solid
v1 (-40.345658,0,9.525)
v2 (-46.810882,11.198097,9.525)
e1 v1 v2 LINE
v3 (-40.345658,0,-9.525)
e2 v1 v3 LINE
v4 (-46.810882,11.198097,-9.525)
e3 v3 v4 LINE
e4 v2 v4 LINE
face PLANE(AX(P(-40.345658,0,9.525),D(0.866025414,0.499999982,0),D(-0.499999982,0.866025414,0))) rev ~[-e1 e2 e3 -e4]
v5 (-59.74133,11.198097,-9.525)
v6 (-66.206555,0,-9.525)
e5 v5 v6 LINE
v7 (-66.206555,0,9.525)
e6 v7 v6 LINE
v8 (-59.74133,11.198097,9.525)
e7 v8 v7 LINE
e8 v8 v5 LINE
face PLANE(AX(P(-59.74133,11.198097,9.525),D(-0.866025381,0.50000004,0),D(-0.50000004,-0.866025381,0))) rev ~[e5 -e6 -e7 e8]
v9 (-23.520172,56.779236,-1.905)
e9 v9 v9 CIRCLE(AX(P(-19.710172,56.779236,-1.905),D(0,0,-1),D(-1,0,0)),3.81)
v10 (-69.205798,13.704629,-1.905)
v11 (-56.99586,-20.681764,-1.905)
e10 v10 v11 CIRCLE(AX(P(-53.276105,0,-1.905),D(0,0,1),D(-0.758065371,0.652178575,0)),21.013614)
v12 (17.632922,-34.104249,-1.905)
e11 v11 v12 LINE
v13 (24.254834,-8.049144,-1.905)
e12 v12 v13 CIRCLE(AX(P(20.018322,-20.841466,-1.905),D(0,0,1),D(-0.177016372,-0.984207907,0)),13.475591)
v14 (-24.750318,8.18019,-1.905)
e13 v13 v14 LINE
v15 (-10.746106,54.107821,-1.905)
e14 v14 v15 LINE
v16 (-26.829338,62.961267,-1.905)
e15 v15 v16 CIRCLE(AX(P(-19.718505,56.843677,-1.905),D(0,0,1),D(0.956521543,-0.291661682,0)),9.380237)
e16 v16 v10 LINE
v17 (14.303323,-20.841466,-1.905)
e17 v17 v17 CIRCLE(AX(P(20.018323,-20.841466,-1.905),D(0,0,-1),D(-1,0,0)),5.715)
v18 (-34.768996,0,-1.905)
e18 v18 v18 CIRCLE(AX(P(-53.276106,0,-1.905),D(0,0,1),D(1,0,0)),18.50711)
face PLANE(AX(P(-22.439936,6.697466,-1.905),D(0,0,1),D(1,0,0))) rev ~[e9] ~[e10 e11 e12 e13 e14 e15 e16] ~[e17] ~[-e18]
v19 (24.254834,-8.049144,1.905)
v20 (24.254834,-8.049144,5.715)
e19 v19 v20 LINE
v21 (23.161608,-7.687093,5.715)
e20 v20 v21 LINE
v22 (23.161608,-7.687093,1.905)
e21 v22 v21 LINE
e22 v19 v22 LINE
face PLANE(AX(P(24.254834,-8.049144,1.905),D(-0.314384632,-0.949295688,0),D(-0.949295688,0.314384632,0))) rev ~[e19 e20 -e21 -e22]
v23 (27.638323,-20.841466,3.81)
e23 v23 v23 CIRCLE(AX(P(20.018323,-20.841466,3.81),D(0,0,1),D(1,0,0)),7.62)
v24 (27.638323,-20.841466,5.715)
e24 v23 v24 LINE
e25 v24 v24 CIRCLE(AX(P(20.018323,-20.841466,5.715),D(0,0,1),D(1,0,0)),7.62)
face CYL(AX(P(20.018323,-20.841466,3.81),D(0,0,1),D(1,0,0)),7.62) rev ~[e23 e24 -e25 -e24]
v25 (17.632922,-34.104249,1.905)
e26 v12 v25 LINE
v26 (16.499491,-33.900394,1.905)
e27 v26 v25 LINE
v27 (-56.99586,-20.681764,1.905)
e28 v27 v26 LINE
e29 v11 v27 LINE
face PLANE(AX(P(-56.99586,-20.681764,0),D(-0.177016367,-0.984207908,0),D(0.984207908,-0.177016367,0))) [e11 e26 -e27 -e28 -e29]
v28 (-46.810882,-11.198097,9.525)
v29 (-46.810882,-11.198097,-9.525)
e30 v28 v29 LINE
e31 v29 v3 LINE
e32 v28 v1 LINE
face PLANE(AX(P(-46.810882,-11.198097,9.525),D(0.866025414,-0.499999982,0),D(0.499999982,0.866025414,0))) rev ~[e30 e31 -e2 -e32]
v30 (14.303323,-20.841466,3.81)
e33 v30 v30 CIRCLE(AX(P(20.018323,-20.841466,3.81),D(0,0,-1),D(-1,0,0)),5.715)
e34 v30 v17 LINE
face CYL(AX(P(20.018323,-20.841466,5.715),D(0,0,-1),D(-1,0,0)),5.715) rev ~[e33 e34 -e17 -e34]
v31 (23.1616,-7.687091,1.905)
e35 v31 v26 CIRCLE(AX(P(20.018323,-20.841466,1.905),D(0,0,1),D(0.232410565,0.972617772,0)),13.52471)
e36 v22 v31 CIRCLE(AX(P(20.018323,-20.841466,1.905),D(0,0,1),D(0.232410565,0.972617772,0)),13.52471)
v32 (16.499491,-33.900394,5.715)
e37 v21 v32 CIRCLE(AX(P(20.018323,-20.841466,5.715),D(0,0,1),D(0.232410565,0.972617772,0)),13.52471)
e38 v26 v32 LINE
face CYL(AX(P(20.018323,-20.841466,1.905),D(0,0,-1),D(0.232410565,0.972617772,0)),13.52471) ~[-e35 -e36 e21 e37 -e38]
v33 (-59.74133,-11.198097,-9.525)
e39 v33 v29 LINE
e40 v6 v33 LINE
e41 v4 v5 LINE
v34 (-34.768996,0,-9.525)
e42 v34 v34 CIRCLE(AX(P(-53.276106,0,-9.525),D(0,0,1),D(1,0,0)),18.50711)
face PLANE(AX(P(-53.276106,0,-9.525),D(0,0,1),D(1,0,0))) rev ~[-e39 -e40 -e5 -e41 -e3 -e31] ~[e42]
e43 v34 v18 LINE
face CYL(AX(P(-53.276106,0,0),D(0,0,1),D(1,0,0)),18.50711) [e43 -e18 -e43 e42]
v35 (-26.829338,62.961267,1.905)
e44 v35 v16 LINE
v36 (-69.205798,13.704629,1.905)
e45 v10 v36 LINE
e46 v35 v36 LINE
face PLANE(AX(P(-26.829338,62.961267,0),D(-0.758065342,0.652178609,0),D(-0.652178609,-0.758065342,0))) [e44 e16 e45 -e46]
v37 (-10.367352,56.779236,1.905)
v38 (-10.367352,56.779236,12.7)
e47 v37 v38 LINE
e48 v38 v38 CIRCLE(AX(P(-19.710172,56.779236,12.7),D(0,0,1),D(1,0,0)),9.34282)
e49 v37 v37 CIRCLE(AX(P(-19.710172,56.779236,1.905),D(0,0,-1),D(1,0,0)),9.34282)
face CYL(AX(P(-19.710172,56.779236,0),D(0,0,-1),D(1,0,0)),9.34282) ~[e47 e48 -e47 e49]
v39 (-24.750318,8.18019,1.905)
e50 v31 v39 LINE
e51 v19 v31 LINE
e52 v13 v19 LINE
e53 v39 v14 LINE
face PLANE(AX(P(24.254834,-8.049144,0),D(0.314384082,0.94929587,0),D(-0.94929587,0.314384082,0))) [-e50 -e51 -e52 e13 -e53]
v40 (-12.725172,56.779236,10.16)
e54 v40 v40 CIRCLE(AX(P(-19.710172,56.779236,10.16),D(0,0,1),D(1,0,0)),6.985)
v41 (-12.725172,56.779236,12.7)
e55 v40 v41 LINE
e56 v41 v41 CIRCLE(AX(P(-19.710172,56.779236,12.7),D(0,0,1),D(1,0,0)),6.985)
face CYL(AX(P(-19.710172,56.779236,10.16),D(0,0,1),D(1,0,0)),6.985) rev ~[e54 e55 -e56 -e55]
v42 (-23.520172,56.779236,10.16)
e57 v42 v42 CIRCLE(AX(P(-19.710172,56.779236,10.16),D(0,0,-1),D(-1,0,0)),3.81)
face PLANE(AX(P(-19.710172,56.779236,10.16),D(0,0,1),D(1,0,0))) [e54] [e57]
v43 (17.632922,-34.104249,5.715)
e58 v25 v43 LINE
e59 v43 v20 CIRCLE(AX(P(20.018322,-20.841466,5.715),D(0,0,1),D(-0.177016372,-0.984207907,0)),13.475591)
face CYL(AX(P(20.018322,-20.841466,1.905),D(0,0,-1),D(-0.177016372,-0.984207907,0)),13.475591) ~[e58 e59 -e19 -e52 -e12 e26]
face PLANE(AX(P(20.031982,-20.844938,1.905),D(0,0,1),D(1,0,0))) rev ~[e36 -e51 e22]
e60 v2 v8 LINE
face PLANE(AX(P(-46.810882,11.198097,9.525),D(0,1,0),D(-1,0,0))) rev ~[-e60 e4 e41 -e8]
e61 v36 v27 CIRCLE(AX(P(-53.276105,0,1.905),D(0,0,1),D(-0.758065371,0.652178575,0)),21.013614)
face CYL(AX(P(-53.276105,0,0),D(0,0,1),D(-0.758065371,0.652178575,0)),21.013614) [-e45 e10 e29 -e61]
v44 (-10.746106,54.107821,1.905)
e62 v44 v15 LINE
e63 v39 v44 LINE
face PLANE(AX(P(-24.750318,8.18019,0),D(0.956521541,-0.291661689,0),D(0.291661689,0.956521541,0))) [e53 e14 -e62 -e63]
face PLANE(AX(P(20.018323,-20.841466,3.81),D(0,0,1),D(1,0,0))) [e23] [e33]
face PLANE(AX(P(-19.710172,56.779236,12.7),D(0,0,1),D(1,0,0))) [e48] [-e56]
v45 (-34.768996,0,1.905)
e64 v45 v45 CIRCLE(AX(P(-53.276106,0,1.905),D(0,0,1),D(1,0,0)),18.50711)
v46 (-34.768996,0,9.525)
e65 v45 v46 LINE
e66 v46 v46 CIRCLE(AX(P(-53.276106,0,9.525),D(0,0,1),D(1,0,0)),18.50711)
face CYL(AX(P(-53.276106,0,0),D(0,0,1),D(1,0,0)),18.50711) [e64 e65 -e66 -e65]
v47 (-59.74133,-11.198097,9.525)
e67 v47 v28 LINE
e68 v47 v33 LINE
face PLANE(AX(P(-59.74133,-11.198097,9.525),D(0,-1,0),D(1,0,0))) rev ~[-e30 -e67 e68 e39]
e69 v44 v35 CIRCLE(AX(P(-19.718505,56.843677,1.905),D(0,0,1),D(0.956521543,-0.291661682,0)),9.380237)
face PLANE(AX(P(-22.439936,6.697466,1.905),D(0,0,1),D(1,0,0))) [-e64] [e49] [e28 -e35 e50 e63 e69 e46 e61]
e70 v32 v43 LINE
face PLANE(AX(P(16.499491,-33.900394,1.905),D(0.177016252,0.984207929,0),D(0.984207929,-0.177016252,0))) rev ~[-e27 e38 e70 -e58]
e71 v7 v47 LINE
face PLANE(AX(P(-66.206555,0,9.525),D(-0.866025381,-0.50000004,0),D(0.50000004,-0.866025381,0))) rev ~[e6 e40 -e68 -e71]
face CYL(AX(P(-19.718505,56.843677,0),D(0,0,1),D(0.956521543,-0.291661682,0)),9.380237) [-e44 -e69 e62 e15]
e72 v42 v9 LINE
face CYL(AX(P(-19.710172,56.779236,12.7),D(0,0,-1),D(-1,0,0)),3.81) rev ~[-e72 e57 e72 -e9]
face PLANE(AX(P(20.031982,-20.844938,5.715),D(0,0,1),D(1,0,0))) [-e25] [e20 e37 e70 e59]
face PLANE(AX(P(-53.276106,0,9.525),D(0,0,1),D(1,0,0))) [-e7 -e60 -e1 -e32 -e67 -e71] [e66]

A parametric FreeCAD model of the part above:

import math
import FreeCAD as App
import Part
import Sketcher
Q = App.Units.Quantity


def add_polygon(sketch, points):
    """Adds a closed chain of lines whose ends are joined by coincident constraints."""
    first, n = sketch.GeometryCount, len(points)
    for a, b in zip(points, points[1:] + points[:1]):
        sketch.addGeometry(Part.LineSegment(App.Vector(*a, 0), App.Vector(*b, 0)), False)
    for i in range(n):
        sketch.addConstraint(Sketcher.Constraint("Coincident", first + i, 2, first + (i + 1) % n, 1))

doc = App.newDocument("Part")
body = doc.addObject("PartDesign::Body", "Body")

# Sketch on XY plane
sketch1 = doc.addObject("Sketcher::SketchObject", "Sketch")
body.addObject(sketch1)
sketch1.AttachmentSupport = (doc.XY_Plane, [""])
sketch1.MapMode = "FlatFace"
sketch1.addGeometry(Part.LineSegment(App.Vector(-26.829338, 62.961267, 0), App.Vector(-69.205798, 13.704629, 0)), False)
sketch1.addGeometry(Part.ArcOfCircle(Part.Circle(App.Vector(-53.276105, 0, 0), App.Vector(0, 0, 1), 21.013614), math.radians(139.293941), math.radians(259.803977)), False)
sketch1.addGeometry(Part.LineSegment(App.Vector(-56.99586, -20.681764, 0), App.Vector(17.632922, -34.104249, 0)), False)
sketch1.addGeometry(Part.ArcOfCircle(Part.Circle(App.Vector(20.018322, -20.841466, 0), App.Vector(0, 0, 1), 13.475591), math.radians(-100.19602), math.radians(71.676362)), False)
sketch1.addGeometry(Part.LineSegment(App.Vector(24.254834, -8.049144, 0), App.Vector(-24.750318, 8.18019, 0)), False)
sketch1.addGeometry(Part.LineSegment(App.Vector(-24.750318, 8.18019, 0), App.Vector(-10.746106, 54.107821, 0)), False)
sketch1.addGeometry(Part.ArcOfCircle(Part.Circle(App.Vector(-19.718505, 56.843677, 0), App.Vector(0, 0, 1), 9.380237), math.radians(-16.957465), math.radians(139.293938)), False)
sketch1.addConstraint(Sketcher.Constraint("Tangent", 0, 2, 1, 1))
sketch1.addConstraint(Sketcher.Constraint("Tangent", 1, 2, 2, 1))
sketch1.addConstraint(Sketcher.Constraint("Tangent", 2, 2, 3, 1))
sketch1.addConstraint(Sketcher.Constraint("Tangent", 3, 2, 4, 1))
sketch1.addConstraint(Sketcher.Constraint("Coincident", 4, 2, 5, 1))
sketch1.addConstraint(Sketcher.Constraint("Tangent", 5, 2, 6, 1))
sketch1.addConstraint(Sketcher.Constraint("Tangent", 6, 2, 0, 1))
sketch1.addConstraint(Sketcher.Constraint("PointOnObject", 1, 3, -1))
sketch1.addConstraint(Sketcher.Constraint("Radius", 3, 13.475591))
sketch1.addConstraint(Sketcher.Constraint("Radius", 1, 21.013614))
sketch1.addConstraint(Sketcher.Constraint("Radius", 6, 9.380237))
sketch1.addConstraint(Sketcher.Constraint("DistanceX", 0, 2, -1, 1, 69.205798))
sketch1.addConstraint(Sketcher.Constraint("DistanceX", 1, 3, 6, 3, 33.5576))
sketch1.addConstraint(Sketcher.Constraint("DistanceX", 2, 2, 3, 3, 2.3854))
sketch1.addConstraint(Sketcher.Constraint("DistanceX", 6, 3, 5, 2, 8.972399))
sketch1.addConstraint(Sketcher.Constraint("Distance", 0, 64.976771))
sketch1.addConstraint(Sketcher.Constraint("Distance", 5, 48.015261))
sketch1.addConstraint(Sketcher.Constraint("DistanceY", 2, 2, -1, 1, 34.104249))
pad1 = doc.addObject("PartDesign::Pad", "Pad")
body.addObject(pad1)
pad1.Profile = sketch1
pad1.Length = Q("0.15 in")
pad1.Midplane = True

# Sketch on XY plane
sketch2 = doc.addObject("Sketcher::SketchObject", "Sketch001")
body.addObject(sketch2)
sketch2.AttachmentSupport = (doc.XY_Plane, [""])
sketch2.MapMode = "FlatFace"
sketch2.addGeometry(Part.Circle(App.Vector(-19.710172, 56.779236, 0), App.Vector(0, 0, 1), 9.34282), False)
sketch2.addConstraint(Sketcher.Constraint("Diameter", 0, 18.68564))
sketch2.addConstraint(Sketcher.Constraint("DistanceX", 0, 3, -1, 1, 19.710172))
sketch2.addConstraint(Sketcher.Constraint("DistanceY", -1, 1, 0, 3, 56.779236))
pad2 = doc.addObject("PartDesign::Pad", "Pad001")
body.addObject(pad2)
pad2.Profile = sketch2
pad2.Length = Q("0.5 in")

# Sketch on XY plane
sketch3 = doc.addObject("Sketcher::SketchObject", "Sketch002")
body.addObject(sketch3)
sketch3.AttachmentSupport = (doc.XY_Plane, [""])
sketch3.MapMode = "FlatFace"
sketch3.AttachmentOffset = App.Placement(App.Vector(0, 0, 0.075 * 25.4), App.Rotation())
sketch3.addGeometry(Part.LineSegment(App.Vector(24.254834, -8.049144, 0), App.Vector(23.161608, -7.687093, 0)), False)
sketch3.addGeometry(Part.ArcOfCircle(Part.Circle(App.Vector(20.018323, -20.841466, 0), App.Vector(0, 0, 1), 13.52471), math.radians(76.560967), math.radians(254.919377)), False)
sketch3.addGeometry(Part.LineSegment(App.Vector(16.499491, -33.900394, 0), App.Vector(17.632922, -34.104249, 0)), False)
sketch3.addGeometry(Part.ArcOfCircle(Part.Circle(App.Vector(20.018322, -20.841466, 0), App.Vector(0, 0, 1), 13.475591), math.radians(-100.19602), math.radians(71.676362)), False)
sketch3.addConstraint(Sketcher.Constraint("Coincident", 0, 2, 1, 1))
sketch3.addConstraint(Sketcher.Constraint("Coincident", 1, 2, 2, 1))
sketch3.addConstraint(Sketcher.Constraint("Tangent", 2, 2, 3, 1))
sketch3.addConstraint(Sketcher.Constraint("Tangent", 3, 2, 0, 1))
sketch3.addConstraint(Sketcher.Constraint("Coincident", 3, 3, 1, 3))
sketch3.addConstraint(Sketcher.Constraint("Radius", 1, 13.52471))
sketch3.addConstraint(Sketcher.Constraint("Radius", 3, 13.475591))
sketch3.addConstraint(Sketcher.Constraint("DistanceY", 1, 2, 0, 2, 26.213301))
sketch3.addConstraint(Sketcher.Constraint("DistanceX", 2, 2, 3, 3, 2.3854))
sketch3.addConstraint(Sketcher.Constraint("DistanceX", -1, 1, 0, 2, 23.161608))
sketch3.addConstraint(Sketcher.Constraint("DistanceY", 2, 2, -1, 1, 34.104249))
pad3 = doc.addObject("PartDesign::Pad", "Pad002")
body.addObject(pad3)
pad3.Profile = sketch3
pad3.Length = Q("0.15 in")

# Sketch on XY plane
sketch4 = doc.addObject("Sketcher::SketchObject", "Sketch003")
body.addObject(sketch4)
sketch4.AttachmentSupport = (doc.XY_Plane, [""])
sketch4.MapMode = "FlatFace"
sketch4.addGeometry(Part.Circle(App.Vector(-53.276106, 0, 0), App.Vector(0, 0, 1), 18.50711), False)
sketch4.addConstraint(Sketcher.Constraint("PointOnObject", 0, 3, -1))
sketch4.addConstraint(Sketcher.Constraint("Diameter", 0, 37.01422))
sketch4.addConstraint(Sketcher.Constraint("DistanceX", 0, 3, -1, 1, 53.276106))
pad4 = doc.addObject("PartDesign::Pad", "Pad003")
body.addObject(pad4)
pad4.Profile = sketch4
pad4.Length = Q("0.75 in")
pad4.Midplane = True

# Sketch on XY plane
sketch5 = doc.addObject("Sketcher::SketchObject", "Sketch004")
body.addObject(sketch5)
sketch5.AttachmentSupport = (doc.XY_Plane, [""])
sketch5.MapMode = "FlatFace"
sketch5.AttachmentOffset = App.Placement(App.Vector(0, 0, 0.5 * 25.4), App.Rotation())
sketch5.addGeometry(Part.Circle(App.Vector(-19.710172, 56.779236, 0), App.Vector(0, 0, 1), 3.81), False)
sketch5.addConstraint(Sketcher.Constraint("Diameter", 0, Q("0.3 in")))
sketch5.addConstraint(Sketcher.Constraint("DistanceX", 0, 3, -1, 1, 19.710172))
sketch5.addConstraint(Sketcher.Constraint("DistanceY", -1, 1, 0, 3, 56.779236))
doc.recompute()
hole = doc.addObject("PartDesign::Hole", "Hole")
body.addObject(hole)
hole.Profile = sketch5
hole.ThreadType = "None"
hole.Diameter = Q("0.3 in")
hole.DepthType = "Dimension"
hole.Depth = Q("4 in")
hole.DrillPoint = "Flat"
hole.HoleCutType = "Counterbore"
hole.HoleCutDiameter = Q("0.55 in")
hole.HoleCutDepth = Q("0.1 in")

# Sketch on XY plane
sketch6 = doc.addObject("Sketcher::SketchObject", "Sketch005")
body.addObject(sketch6)
sketch6.AttachmentSupport = (doc.XY_Plane, [""])
sketch6.MapMode = "FlatFace"
sketch6.AttachmentOffset = App.Placement(App.Vector(0, 0, 0.225 * 25.4), App.Rotation())
sketch6.addGeometry(Part.Circle(App.Vector(20.018323, -20.841466, 0), App.Vector(0, 0, 1), 5.715), False)
sketch6.addConstraint(Sketcher.Constraint("Diameter", 0, Q("0.45 in")))
sketch6.addConstraint(Sketcher.Constraint("DistanceX", -1, 1, 0, 3, 20.018323))
sketch6.addConstraint(Sketcher.Constraint("DistanceY", 0, 3, -1, 1, 20.841466))
doc.recompute()
hole2 = doc.addObject("PartDesign::Hole", "Hole001")
body.addObject(hole2)
hole2.Profile = sketch6
hole2.ThreadType = "None"
hole2.Diameter = Q("0.45 in")
hole2.DepthType = "Dimension"
hole2.Depth = Q("4 in")
hole2.DrillPoint = "Flat"
hole2.HoleCutType = "Counterbore"
hole2.HoleCutDiameter = Q("0.6 in")
hole2.HoleCutDepth = Q("0.075 in")

# Sketch on XY plane
sketch7 = doc.addObject("Sketcher::SketchObject", "Sketch006")
body.addObject(sketch7)
sketch7.AttachmentSupport = (doc.XY_Plane, [""])
sketch7.MapMode = "FlatFace"
sketch7.AttachmentOffset = App.Placement(App.Vector(0, 0, 0.375 * 25.4), App.Rotation())
add_polygon(sketch7, [(-46.810882, 11.198097), (-59.74133, 11.198097), (-66.206555, 0), (-59.74133, -11.198097), (-46.810882, -11.198097), (-40.345658, 0)])  # lines 0-5
sketch7.addConstraint(Sketcher.Constraint("Horizontal", 0))
sketch7.addConstraint(Sketcher.Constraint("Horizontal", 3))
sketch7.addConstraint(Sketcher.Constraint("Symmetric", 0, 2, 2, 2, -1))
sketch7.addConstraint(Sketcher.Constraint("PointOnObject", 1, 2, -1))
sketch7.addConstraint(Sketcher.Constraint("PointOnObject", 4, 2, -1))
sketch7.addConstraint(Sketcher.Constraint("Parallel", 1, 4))
sketch7.addConstraint(Sketcher.Constraint("Parallel", 2, 5))
sketch7.addConstraint(Sketcher.Constraint("Angle", 1, Q("-120.000003 deg")))
sketch7.addConstraint(Sketcher.Constraint("Distance", 1, 12.930449))
sketch7.addConstraint(Sketcher.Constraint("DistanceX", 0, 2, 0, 1, 12.930448))
sketch7.addConstraint(Sketcher.Constraint("DistanceX", 0, 2, -1, 1, 59.74133))
pocket1 = doc.addObject("PartDesign::Pocket", "Pocket")
body.addObject(pocket1)
pocket1.Profile = sketch7
pocket1.Type = "ThroughAll"

doc.recompute()
